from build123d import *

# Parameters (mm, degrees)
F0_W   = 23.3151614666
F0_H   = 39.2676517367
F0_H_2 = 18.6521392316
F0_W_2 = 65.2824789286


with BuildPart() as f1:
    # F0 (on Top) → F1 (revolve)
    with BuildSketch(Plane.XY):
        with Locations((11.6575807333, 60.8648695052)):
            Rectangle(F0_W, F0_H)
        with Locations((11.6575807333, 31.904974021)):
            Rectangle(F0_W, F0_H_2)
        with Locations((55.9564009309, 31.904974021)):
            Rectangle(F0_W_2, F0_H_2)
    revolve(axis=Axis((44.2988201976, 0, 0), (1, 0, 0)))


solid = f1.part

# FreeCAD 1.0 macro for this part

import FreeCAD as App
import Part
import Sketcher
from FreeCAD import Vector

doc = App.newDocument("Part")
body = doc.addObject("PartDesign::Body", "Body")

# Sketch on XY plane
sketch1 = body.newObject("Sketcher::SketchObject", "Sketch")
sketch1.AttachmentSupport = (doc.getObject("XY_Plane"), [""])
sketch1.MapMode = "FlatFace"
sketch1.addGeometry(Part.LineSegment(Vector(0, 80, 0), Vector(0, 23, 0)), False)
sketch1.addGeometry(Part.LineSegment(Vector(0, 23, 0), Vector(89, 23, 0)), False)
sketch1.addGeometry(Part.LineSegment(Vector(89, 23, 0), Vector(89, 41, 0)), False)
sketch1.addGeometry(Part.LineSegment(Vector(89, 41, 0), Vector(23, 41, 0)), False)
sketch1.addGeometry(Part.LineSegment(Vector(23, 41, 0), Vector(23, 80, 0)), False)
sketch1.addGeometry(Part.LineSegment(Vector(23, 80, 0), Vector(0, 80, 0)), False)
sketch1.addConstraint(Sketcher.Constraint("Coincident", 0, 2, 1, 1))
sketch1.addConstraint(Sketcher.Constraint("Coincident", 1, 2, 2, 1))
sketch1.addConstraint(Sketcher.Constraint("Coincident", 2, 2, 3, 1))
sketch1.addConstraint(Sketcher.Constraint("Coincident", 3, 2, 4, 1))
sketch1.addConstraint(Sketcher.Constraint("Coincident", 4, 2, 5, 1))
sketch1.addConstraint(Sketcher.Constraint("Coincident", 5, 2, 0, 1))
sketch1.addConstraint(Sketcher.Constraint("Vertical", 0))
sketch1.addConstraint(Sketcher.Constraint("Horizontal", 1))
sketch1.addConstraint(Sketcher.Constraint("Vertical", 2))
sketch1.addConstraint(Sketcher.Constraint("Horizontal", 3))
sketch1.addConstraint(Sketcher.Constraint("Vertical", 4))
sketch1.addConstraint(Sketcher.Constraint("Horizontal", 5))
sketch1.addConstraint(Sketcher.Constraint("PointOnObject", 0, 2, -2))
sketch1.addConstraint(Sketcher.Constraint("DistanceX", 1, 1, 1, 2, 88.59764))
sketch1.addConstraint(Sketcher.Constraint("DistanceX", 3, 2, 3, 1, 65.282479))
sketch1.addConstraint(Sketcher.Constraint("DistanceY", 0, 2, 0, 1, 57.919791))
sketch1.addConstraint(Sketcher.Constraint("DistanceY", 2, 1, 2, 2, 18.652139))
sketch1.addConstraint(Sketcher.Constraint("DistanceY", -1, 1, 0, 2, 22.578904))
revolution = body.newObject("PartDesign::Revolution", "Revolution")
revolution.Profile = sketch1
revolution.ReferenceAxis = (sketch1, ["H_Axis"])
revolution.Angle = 360

doc.recompute()
